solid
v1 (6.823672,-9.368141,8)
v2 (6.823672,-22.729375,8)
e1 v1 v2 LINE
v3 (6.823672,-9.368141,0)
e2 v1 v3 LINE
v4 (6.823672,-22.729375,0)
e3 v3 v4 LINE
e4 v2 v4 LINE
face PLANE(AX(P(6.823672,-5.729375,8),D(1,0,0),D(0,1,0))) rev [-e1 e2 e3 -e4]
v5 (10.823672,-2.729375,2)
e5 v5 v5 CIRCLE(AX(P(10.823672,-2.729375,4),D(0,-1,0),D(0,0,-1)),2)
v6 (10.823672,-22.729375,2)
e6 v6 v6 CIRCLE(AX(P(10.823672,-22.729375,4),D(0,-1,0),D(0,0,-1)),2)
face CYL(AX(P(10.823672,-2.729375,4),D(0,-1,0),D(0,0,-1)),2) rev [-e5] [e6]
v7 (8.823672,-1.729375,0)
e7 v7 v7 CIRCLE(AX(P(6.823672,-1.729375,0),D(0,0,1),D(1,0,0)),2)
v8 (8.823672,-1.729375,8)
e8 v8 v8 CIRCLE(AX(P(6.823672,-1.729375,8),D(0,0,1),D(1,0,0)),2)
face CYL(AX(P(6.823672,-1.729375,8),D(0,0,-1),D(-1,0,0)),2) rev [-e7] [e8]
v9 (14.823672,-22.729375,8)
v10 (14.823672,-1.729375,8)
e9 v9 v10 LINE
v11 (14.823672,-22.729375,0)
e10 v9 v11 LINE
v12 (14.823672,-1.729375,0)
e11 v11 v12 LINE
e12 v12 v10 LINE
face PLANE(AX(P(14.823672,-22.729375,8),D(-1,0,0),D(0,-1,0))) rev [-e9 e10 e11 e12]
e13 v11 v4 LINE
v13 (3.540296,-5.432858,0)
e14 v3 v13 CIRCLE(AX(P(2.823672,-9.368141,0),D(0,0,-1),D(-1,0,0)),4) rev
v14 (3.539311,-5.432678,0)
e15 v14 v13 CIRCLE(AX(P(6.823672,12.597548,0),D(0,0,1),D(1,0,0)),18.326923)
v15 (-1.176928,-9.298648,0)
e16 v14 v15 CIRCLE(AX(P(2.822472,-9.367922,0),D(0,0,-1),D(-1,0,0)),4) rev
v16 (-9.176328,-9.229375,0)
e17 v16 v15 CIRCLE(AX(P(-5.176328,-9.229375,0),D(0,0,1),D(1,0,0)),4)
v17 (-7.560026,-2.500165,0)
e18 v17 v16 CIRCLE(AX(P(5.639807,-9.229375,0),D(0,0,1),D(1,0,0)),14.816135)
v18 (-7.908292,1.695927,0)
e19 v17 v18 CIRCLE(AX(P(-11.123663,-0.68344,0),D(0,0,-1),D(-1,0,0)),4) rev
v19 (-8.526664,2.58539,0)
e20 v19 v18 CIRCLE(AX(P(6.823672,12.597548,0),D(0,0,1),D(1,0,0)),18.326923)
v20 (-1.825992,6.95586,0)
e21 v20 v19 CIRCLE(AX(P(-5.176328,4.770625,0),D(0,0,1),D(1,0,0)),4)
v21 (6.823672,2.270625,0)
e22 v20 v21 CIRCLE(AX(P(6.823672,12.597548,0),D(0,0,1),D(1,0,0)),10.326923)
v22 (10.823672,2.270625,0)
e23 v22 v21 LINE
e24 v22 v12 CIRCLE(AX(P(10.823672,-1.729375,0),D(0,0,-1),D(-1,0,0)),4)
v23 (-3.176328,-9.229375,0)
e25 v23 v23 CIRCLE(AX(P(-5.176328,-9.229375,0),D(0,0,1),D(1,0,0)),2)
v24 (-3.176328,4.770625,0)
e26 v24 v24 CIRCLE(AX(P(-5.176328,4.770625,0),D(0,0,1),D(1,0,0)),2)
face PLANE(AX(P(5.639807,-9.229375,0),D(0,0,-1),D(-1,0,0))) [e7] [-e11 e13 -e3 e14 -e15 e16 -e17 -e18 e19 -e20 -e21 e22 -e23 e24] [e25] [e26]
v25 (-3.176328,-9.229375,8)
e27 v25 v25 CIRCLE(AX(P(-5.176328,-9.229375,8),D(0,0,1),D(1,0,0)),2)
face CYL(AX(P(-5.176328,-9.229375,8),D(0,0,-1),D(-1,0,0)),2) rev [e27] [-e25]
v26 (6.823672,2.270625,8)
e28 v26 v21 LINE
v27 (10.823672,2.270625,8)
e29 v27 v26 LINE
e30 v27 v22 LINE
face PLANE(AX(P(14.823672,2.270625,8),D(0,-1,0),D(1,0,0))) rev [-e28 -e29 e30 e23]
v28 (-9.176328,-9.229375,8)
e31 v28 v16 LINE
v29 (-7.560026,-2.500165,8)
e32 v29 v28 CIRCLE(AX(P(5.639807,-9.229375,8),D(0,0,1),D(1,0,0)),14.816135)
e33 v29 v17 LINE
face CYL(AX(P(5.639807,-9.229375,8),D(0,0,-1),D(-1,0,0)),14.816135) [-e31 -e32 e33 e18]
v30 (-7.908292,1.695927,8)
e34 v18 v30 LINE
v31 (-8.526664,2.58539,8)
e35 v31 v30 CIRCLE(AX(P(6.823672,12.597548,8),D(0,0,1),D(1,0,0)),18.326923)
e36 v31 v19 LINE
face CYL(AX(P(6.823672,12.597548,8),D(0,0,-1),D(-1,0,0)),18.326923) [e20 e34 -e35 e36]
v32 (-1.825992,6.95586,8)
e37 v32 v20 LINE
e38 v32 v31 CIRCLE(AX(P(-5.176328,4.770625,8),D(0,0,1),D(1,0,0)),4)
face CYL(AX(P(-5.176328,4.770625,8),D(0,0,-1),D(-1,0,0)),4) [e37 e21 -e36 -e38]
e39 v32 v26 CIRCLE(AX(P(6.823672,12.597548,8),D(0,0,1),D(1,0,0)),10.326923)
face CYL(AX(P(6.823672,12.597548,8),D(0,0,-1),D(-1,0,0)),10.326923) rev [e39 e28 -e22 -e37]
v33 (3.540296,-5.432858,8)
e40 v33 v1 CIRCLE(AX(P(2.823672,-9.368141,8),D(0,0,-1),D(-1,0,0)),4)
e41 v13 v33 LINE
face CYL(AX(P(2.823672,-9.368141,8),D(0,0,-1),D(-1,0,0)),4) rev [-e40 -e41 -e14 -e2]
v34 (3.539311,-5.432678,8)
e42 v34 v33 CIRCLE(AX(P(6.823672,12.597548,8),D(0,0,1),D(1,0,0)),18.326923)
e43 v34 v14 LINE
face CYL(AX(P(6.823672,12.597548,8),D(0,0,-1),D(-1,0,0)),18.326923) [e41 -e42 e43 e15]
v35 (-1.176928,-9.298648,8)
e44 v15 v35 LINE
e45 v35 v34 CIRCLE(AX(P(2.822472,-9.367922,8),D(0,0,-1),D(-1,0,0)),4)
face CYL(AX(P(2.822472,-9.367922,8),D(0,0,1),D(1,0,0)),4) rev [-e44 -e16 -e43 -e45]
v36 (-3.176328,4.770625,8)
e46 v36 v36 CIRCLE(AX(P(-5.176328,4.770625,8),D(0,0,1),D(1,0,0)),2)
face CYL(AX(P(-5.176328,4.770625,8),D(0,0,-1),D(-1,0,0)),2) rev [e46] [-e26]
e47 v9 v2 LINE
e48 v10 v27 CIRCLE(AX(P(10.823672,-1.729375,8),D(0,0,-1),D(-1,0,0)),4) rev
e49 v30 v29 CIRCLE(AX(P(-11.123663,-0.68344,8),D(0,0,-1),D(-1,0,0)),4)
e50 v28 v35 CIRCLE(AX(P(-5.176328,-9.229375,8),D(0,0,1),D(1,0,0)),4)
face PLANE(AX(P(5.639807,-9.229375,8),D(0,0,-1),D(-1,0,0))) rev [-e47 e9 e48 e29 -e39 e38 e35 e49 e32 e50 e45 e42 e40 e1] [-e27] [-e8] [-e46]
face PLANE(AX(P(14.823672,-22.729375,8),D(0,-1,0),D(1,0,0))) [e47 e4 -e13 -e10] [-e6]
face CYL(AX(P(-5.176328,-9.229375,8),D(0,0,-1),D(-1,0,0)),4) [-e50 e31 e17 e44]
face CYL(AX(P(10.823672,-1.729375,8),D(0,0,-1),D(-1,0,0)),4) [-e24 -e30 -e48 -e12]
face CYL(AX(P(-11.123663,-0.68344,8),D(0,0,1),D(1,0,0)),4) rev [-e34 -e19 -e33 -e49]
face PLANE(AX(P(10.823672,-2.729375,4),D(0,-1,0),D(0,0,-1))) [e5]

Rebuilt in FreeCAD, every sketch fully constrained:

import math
import FreeCAD as App
import Part
import Sketcher


def edges_at(feature, points):
    """Names of the edges that pass closest to the given points."""
    edges = feature.Shape.Edges
    near = lambda p: min(range(len(edges)), key=lambda i: edges[i].distToShape(Part.Vertex(*p))[0])
    return sorted({f"Edge{near(p) + 1}" for p in points})

doc = App.newDocument("Part")
params = doc.addObject("Spreadsheet::Sheet", "Params")
for row, (alias, value) in enumerate([
    ("sketch1_diameter", "4 mm"),
    ("sketch1_radius", "4 mm"),
    ("sketch1_width", "8 mm"),
    ("sketch1_height", "25 mm"),
    ("pad1_length", "8 mm"),
    ("sketch2_diameter", "4 mm"),
    ("pocket1_length", "20 mm"),
    ("fillet_radius", "4 mm"),
], start=1):
    params.set(f"A{row}", alias)
    params.set(f"B{row}", "=" + value)
    params.setAlias(f"B{row}", alias)

body = doc.addObject("PartDesign::Body", "Body")

# Sketch on XY plane
sketch1 = doc.addObject("Sketcher::SketchObject", "Sketch")
body.addObject(sketch1)
sketch1.AttachmentSupport = (doc.XY_Plane, [""])
sketch1.MapMode = "FlatFace"
sketch1.addGeometry([
    Part.LineSegment(App.Vector(6.8, -22.7, 0), App.Vector(14.8, -22.7, 0)),  # 0
    Part.LineSegment(App.Vector(14.8, -22.7, 0), App.Vector(14.8, 2.3, 0)),  # 1
    Part.LineSegment(App.Vector(14.8, 2.3, 0), App.Vector(6.8, 2.3, 0)),  # 2
    Part.ArcOfCircle(Part.Circle(App.Vector(6.8, 12.6, 0), App.Vector(0, 0, 1), 10.3), math.radians(-147), math.radians(-90)),  # 3
    Part.ArcOfCircle(Part.Circle(App.Vector(-5.2, 4.8, 0), App.Vector(0, 0, 1), 4), math.radians(33), math.radians(213)),  # 4
    Part.ArcOfCircle(Part.Circle(App.Vector(6.8, 12.6, 0), App.Vector(0, 0, 1), 18.3), math.radians(-146.89), math.radians(-135.24)),  # 5
    Part.ArcOfCircle(Part.Circle(App.Vector(5.6, -9.2, 0), App.Vector(0, 0, 1), 14.8), math.radians(143), math.radians(180)),  # 6
    Part.ArcOfCircle(Part.Circle(App.Vector(-5.2, -9.2, 0), App.Vector(0, 0, 1), 4), math.radians(180), math.radians(360)),  # 7
    Part.ArcOfCircle(Part.Circle(App.Vector(5.6, -9.2, 0), App.Vector(0, 0, 1), 6.8), math.radians(138), math.radians(180)),  # 8
    Part.ArcOfCircle(Part.Circle(App.Vector(6.8, 12.6, 0), App.Vector(0, 0, 1), 18.3), math.radians(-109.85), math.radians(-90)),  # 9
    Part.LineSegment(App.Vector(6.8, -5.7, 0), App.Vector(6.8, -22.7, 0)),  # 10
    Part.Circle(App.Vector(-5.2, -9.2, 0), App.Vector(0, 0, 1), 2),  # 11
    Part.Circle(App.Vector(6.8, -1.7, 0), App.Vector(0, 0, 1), 2),  # 12
    Part.Circle(App.Vector(-5.2, 4.8, 0), App.Vector(0, 0, 1), 2),  # 13
], False)
sketch1.addConstraint([
    Sketcher.Constraint("Coincident", 0, 2, 1, 1),
    Sketcher.Constraint("Coincident", 1, 2, 2, 1),
    Sketcher.Constraint("Tangent", 2, 2, 3, 2),
    Sketcher.Constraint("Tangent", 3, 1, 4, 1),
    Sketcher.Constraint("Tangent", 4, 2, 5, 1),
    Sketcher.Constraint("Coincident", 5, 2, 6, 1),
    Sketcher.Constraint("Tangent", 6, 2, 7, 1),
    Sketcher.Constraint("Tangent", 7, 2, 8, 2),
    Sketcher.Constraint("Coincident", 8, 1, 9, 1),
    Sketcher.Constraint("Coincident", 9, 2, 10, 1),
    Sketcher.Constraint("Coincident", 10, 2, 0, 1),
    Sketcher.Constraint("Horizontal", 0),
    Sketcher.Constraint("Vertical", 1),
    Sketcher.Constraint("Horizontal", 2),
    Sketcher.Constraint("Vertical", 10),
    Sketcher.Constraint("Coincident", 5, 3, 3, 3),
    Sketcher.Constraint("Coincident", 8, 3, 6, 3),
    Sketcher.Constraint("Coincident", 9, 3, 3, 3),
    Sketcher.Constraint("Coincident", 11, 3, 7, 3),
    Sketcher.Constraint("Coincident", 13, 3, 4, 3),
    Sketcher.Constraint("Equal", 4, 7),
    Sketcher.Constraint("Equal", 5, 9),
    Sketcher.Constraint("Equal", 11, 12),
    Sketcher.Constraint("Equal", 12, 13),
    Sketcher.Constraint("Horizontal", 6, 3, 7, 3),
    Sketcher.Constraint("Vertical", 4, 3, 7, 3),
    Sketcher.Constraint("Vertical", 9, 3, 12, 3),
    Sketcher.Constraint("Vertical", 2, 2, 9, 2),
    Sketcher.Constraint("Diameter", 11, 4.0),
    Sketcher.Constraint("Radius", 4, 4.0),
    Sketcher.Constraint("DistanceX", 0, 1, 0, 2, 8.0),
    Sketcher.Constraint("DistanceY", 1, 1, 1, 2, 25.0),
    Sketcher.Constraint("DistanceX", 4, 3, 3, 3, 12.0),
    Sketcher.Constraint("DistanceY", 6, 3, 4, 3, 14.0),
    Sketcher.Constraint("DistanceY", 0, 2, 12, 3, 21.0),
    Sketcher.Constraint("DistanceY", 6, 3, 12, 3, 7.5),
    Sketcher.Constraint("Radius", 6, 14.816135),
    Sketcher.Constraint("DistanceY", 5, 2, -1, 1, 0.307701),
    Sketcher.Constraint("DistanceX", -1, 1, 5, 3, 6.823672),
])
sketch1.setExpression("Constraints[28]", "Params.sketch1_diameter")
sketch1.setExpression("Constraints[29]", "Params.sketch1_radius")
sketch1.setExpression("Constraints[30]", "Params.sketch1_width")
sketch1.setExpression("Constraints[31]", "Params.sketch1_height")
pad1 = doc.addObject("PartDesign::Pad", "Pad")
body.addObject(pad1)
pad1.Profile = sketch1
pad1.setExpression("Length", "Params.pad1_length")

# Sketch on XZ plane
sketch2 = doc.addObject("Sketcher::SketchObject", "Sketch001")
body.addObject(sketch2)
sketch2.AttachmentSupport = (doc.XZ_Plane, [""])
sketch2.MapMode = "FlatFace"
sketch2.AttachmentOffset = App.Placement(App.Vector(0, 0, 22.729375), App.Rotation())
sketch2.addGeometry(Part.Circle(App.Vector(10.8, 4, 0), App.Vector(0, 0, 1), 2), False)
sketch2.addConstraint([
    Sketcher.Constraint("Diameter", 0, 4.0),
    Sketcher.Constraint("DistanceY", -1, 1, 0, 3, 4.0),
    Sketcher.Constraint("DistanceX", -1, 1, 0, 3, 10.823672),
])
sketch2.setExpression("Constraints[0]", "Params.sketch2_diameter")
pocket1 = doc.addObject("PartDesign::Pocket", "Pocket")
body.addObject(pocket1)
pocket1.Profile = sketch2
pocket1.setExpression("Length", "Params.pocket1_length")
doc.recompute()

fillet = doc.addObject("PartDesign::Fillet", "Fillet")
body.addObject(fillet)
fillet.Base = (pocket1, edges_at(pocket1, [
    (-6.189, -0.308, 4),
    (0.6, -4.64, 4),
    (6.824, -5.729, 4),
    (14.824, 2.271, 4),
]))
fillet.setExpression("Radius", "Params.fillet_radius")

doc.recompute()
